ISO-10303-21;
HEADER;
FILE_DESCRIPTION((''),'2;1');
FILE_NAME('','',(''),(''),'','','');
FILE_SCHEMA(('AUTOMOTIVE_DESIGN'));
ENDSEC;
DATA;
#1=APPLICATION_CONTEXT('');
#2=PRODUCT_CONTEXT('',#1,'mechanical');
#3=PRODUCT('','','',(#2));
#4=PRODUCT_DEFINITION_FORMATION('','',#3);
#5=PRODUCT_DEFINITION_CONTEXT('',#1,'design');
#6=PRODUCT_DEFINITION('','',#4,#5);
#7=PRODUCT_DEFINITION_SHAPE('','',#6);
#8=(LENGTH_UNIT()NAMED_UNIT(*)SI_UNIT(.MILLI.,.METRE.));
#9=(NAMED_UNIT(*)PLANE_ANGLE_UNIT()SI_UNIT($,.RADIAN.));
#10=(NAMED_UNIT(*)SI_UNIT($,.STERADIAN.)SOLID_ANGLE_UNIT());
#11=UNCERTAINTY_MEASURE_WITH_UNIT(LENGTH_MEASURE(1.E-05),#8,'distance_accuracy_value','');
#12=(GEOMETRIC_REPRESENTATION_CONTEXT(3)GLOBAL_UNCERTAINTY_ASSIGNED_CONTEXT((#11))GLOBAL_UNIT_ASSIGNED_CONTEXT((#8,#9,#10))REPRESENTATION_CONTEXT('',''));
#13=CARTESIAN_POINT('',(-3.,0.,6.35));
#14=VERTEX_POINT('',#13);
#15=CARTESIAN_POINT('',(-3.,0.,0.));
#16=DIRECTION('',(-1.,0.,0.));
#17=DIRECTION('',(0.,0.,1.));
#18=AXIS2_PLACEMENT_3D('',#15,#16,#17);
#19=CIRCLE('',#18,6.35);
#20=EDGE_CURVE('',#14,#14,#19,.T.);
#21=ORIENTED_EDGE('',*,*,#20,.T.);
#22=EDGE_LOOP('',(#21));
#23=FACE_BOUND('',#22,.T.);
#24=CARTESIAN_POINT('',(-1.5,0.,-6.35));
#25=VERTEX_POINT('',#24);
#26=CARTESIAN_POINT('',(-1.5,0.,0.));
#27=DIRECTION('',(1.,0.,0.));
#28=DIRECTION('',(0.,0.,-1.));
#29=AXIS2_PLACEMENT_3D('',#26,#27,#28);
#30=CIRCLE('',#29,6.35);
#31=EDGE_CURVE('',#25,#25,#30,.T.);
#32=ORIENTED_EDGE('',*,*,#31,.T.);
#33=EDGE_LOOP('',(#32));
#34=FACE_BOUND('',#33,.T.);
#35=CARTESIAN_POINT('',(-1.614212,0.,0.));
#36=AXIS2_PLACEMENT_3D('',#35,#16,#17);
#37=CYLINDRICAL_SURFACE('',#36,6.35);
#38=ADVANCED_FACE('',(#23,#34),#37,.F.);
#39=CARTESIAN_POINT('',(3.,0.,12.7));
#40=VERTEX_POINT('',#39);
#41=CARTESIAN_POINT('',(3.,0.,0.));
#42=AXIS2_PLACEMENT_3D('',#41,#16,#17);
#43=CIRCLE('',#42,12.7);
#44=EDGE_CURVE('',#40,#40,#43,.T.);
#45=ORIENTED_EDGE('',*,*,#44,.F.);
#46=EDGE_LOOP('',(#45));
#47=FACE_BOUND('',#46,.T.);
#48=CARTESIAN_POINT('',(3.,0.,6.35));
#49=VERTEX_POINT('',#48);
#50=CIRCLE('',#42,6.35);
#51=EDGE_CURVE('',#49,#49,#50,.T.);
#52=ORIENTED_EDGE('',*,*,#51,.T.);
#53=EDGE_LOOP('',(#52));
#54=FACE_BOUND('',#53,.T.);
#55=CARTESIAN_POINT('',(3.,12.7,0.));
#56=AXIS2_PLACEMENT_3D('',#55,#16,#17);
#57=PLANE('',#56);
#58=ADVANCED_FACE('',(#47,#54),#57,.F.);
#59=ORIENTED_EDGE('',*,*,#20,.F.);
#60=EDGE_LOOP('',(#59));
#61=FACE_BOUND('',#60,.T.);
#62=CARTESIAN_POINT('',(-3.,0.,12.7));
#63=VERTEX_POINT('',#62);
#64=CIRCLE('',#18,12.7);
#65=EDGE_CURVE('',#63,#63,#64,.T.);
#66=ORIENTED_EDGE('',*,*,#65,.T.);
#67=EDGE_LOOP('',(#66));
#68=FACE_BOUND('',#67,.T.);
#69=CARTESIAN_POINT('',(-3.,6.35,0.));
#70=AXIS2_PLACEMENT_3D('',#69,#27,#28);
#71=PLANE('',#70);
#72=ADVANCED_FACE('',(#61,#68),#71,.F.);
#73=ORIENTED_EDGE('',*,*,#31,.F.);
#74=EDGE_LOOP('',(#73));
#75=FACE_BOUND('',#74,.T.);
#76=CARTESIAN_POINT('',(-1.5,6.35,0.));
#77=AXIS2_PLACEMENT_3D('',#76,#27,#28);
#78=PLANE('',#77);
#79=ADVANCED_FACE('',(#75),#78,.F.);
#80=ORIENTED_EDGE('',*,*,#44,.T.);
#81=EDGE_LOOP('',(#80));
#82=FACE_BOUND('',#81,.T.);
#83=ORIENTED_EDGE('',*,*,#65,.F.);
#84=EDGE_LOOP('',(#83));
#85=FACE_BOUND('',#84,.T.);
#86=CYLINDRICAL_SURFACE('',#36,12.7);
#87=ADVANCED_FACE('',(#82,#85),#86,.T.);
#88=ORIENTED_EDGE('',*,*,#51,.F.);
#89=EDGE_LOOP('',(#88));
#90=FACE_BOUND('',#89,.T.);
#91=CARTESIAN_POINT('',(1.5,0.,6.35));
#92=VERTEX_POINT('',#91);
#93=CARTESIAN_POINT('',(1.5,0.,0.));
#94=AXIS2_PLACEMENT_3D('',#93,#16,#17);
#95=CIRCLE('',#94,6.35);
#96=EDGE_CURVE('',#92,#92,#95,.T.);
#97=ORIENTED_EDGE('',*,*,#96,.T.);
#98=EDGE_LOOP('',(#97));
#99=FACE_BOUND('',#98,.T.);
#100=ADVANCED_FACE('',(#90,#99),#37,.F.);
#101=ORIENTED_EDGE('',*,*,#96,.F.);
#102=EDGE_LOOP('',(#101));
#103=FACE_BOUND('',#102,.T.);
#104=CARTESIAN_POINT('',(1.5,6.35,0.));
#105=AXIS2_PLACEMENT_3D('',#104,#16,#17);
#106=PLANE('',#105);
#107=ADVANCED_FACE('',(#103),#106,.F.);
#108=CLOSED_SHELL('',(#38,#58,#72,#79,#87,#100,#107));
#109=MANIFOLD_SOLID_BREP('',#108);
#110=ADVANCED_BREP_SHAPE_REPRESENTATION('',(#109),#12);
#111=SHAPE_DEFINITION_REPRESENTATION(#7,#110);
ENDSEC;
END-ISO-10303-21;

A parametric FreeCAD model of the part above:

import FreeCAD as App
import Part
import Sketcher

V = App.Vector
Q = App.Units.Quantity


def add_polygon(sketch, points):
    """Adds a closed chain of lines whose ends are joined by coincident constraints."""
    first, n = sketch.GeometryCount, len(points)
    for a, b in zip(points, points[1:] + points[:1]):
        sketch.addGeometry(Part.LineSegment(App.Vector(*a, 0), App.Vector(*b, 0)), False)
    for i in range(n):
        sketch.addConstraint(Sketcher.Constraint("Coincident", first + i, 2, first + (i + 1) % n, 1))

doc = App.newDocument("Part")
body = doc.addObject("PartDesign::Body", "Body")

# Sketch on XY plane
sketch1 = body.newObject("Sketcher::SketchObject", "Sketch")
sketch1.AttachmentSupport = (doc.getObject("XY_Plane"), [""])
sketch1.MapMode = "FlatFace"
add_polygon(sketch1, [(-1.5, 6.3), (-1.5, 0), (1.5, 0), (1.5, 6.3)])  # lines 0-3
sketch1.addConstraint(Sketcher.Constraint("Vertical", 0))
sketch1.addConstraint(Sketcher.Constraint("Horizontal", 1))
sketch1.addConstraint(Sketcher.Constraint("Vertical", 2))
sketch1.addConstraint(Sketcher.Constraint("Horizontal", 3))
sketch1.addConstraint(Sketcher.Constraint("Symmetric", 0, 2, 1, 2, -1, 1))
sketch1.addConstraint(Sketcher.Constraint("DistanceX", 1, 1, 1, 2, Q("3 mm")))
sketch1.addConstraint(Sketcher.Constraint("DistanceY", 0, 2, 0, 1, Q("6.35 mm")))
revolution = body.newObject("PartDesign::Revolution", "Revolution")
revolution.Profile = sketch1
revolution.ReferenceAxis = (sketch1, ["H_Axis"])
revolution.Angle = 360

# Sketch on XY plane
sketch2 = body.newObject("Sketcher::SketchObject", "Sketch001")
sketch2.AttachmentSupport = (doc.getObject("XY_Plane"), [""])
sketch2.MapMode = "FlatFace"
add_polygon(sketch2, [(-3, 13), (-3, 6), (3, 6), (3, 13)])  # lines 0-3
sketch2.addConstraint(Sketcher.Constraint("Vertical", 0))
sketch2.addConstraint(Sketcher.Constraint("Horizontal", 1))
sketch2.addConstraint(Sketcher.Constraint("Vertical", 2))
sketch2.addConstraint(Sketcher.Constraint("Horizontal", 3))
sketch2.addConstraint(Sketcher.Constraint("DistanceX", 1, 1, 1, 2, Q("6 mm")))
sketch2.addConstraint(Sketcher.Constraint("DistanceX", 0, 2, -1, 1, Q("3 mm")))
sketch2.addConstraint(Sketcher.Constraint("DistanceY", 0, 2, 0, 1, Q("6.35 mm")))
sketch2.addConstraint(Sketcher.Constraint("DistanceY", -1, 1, 2, 2, Q("12.7 mm")))
revolution2 = body.newObject("PartDesign::Revolution", "Revolution001")
revolution2.Profile = sketch2
revolution2.ReferenceAxis = (sketch2, ["H_Axis"])
revolution2.Angle = 360

doc.recompute()
